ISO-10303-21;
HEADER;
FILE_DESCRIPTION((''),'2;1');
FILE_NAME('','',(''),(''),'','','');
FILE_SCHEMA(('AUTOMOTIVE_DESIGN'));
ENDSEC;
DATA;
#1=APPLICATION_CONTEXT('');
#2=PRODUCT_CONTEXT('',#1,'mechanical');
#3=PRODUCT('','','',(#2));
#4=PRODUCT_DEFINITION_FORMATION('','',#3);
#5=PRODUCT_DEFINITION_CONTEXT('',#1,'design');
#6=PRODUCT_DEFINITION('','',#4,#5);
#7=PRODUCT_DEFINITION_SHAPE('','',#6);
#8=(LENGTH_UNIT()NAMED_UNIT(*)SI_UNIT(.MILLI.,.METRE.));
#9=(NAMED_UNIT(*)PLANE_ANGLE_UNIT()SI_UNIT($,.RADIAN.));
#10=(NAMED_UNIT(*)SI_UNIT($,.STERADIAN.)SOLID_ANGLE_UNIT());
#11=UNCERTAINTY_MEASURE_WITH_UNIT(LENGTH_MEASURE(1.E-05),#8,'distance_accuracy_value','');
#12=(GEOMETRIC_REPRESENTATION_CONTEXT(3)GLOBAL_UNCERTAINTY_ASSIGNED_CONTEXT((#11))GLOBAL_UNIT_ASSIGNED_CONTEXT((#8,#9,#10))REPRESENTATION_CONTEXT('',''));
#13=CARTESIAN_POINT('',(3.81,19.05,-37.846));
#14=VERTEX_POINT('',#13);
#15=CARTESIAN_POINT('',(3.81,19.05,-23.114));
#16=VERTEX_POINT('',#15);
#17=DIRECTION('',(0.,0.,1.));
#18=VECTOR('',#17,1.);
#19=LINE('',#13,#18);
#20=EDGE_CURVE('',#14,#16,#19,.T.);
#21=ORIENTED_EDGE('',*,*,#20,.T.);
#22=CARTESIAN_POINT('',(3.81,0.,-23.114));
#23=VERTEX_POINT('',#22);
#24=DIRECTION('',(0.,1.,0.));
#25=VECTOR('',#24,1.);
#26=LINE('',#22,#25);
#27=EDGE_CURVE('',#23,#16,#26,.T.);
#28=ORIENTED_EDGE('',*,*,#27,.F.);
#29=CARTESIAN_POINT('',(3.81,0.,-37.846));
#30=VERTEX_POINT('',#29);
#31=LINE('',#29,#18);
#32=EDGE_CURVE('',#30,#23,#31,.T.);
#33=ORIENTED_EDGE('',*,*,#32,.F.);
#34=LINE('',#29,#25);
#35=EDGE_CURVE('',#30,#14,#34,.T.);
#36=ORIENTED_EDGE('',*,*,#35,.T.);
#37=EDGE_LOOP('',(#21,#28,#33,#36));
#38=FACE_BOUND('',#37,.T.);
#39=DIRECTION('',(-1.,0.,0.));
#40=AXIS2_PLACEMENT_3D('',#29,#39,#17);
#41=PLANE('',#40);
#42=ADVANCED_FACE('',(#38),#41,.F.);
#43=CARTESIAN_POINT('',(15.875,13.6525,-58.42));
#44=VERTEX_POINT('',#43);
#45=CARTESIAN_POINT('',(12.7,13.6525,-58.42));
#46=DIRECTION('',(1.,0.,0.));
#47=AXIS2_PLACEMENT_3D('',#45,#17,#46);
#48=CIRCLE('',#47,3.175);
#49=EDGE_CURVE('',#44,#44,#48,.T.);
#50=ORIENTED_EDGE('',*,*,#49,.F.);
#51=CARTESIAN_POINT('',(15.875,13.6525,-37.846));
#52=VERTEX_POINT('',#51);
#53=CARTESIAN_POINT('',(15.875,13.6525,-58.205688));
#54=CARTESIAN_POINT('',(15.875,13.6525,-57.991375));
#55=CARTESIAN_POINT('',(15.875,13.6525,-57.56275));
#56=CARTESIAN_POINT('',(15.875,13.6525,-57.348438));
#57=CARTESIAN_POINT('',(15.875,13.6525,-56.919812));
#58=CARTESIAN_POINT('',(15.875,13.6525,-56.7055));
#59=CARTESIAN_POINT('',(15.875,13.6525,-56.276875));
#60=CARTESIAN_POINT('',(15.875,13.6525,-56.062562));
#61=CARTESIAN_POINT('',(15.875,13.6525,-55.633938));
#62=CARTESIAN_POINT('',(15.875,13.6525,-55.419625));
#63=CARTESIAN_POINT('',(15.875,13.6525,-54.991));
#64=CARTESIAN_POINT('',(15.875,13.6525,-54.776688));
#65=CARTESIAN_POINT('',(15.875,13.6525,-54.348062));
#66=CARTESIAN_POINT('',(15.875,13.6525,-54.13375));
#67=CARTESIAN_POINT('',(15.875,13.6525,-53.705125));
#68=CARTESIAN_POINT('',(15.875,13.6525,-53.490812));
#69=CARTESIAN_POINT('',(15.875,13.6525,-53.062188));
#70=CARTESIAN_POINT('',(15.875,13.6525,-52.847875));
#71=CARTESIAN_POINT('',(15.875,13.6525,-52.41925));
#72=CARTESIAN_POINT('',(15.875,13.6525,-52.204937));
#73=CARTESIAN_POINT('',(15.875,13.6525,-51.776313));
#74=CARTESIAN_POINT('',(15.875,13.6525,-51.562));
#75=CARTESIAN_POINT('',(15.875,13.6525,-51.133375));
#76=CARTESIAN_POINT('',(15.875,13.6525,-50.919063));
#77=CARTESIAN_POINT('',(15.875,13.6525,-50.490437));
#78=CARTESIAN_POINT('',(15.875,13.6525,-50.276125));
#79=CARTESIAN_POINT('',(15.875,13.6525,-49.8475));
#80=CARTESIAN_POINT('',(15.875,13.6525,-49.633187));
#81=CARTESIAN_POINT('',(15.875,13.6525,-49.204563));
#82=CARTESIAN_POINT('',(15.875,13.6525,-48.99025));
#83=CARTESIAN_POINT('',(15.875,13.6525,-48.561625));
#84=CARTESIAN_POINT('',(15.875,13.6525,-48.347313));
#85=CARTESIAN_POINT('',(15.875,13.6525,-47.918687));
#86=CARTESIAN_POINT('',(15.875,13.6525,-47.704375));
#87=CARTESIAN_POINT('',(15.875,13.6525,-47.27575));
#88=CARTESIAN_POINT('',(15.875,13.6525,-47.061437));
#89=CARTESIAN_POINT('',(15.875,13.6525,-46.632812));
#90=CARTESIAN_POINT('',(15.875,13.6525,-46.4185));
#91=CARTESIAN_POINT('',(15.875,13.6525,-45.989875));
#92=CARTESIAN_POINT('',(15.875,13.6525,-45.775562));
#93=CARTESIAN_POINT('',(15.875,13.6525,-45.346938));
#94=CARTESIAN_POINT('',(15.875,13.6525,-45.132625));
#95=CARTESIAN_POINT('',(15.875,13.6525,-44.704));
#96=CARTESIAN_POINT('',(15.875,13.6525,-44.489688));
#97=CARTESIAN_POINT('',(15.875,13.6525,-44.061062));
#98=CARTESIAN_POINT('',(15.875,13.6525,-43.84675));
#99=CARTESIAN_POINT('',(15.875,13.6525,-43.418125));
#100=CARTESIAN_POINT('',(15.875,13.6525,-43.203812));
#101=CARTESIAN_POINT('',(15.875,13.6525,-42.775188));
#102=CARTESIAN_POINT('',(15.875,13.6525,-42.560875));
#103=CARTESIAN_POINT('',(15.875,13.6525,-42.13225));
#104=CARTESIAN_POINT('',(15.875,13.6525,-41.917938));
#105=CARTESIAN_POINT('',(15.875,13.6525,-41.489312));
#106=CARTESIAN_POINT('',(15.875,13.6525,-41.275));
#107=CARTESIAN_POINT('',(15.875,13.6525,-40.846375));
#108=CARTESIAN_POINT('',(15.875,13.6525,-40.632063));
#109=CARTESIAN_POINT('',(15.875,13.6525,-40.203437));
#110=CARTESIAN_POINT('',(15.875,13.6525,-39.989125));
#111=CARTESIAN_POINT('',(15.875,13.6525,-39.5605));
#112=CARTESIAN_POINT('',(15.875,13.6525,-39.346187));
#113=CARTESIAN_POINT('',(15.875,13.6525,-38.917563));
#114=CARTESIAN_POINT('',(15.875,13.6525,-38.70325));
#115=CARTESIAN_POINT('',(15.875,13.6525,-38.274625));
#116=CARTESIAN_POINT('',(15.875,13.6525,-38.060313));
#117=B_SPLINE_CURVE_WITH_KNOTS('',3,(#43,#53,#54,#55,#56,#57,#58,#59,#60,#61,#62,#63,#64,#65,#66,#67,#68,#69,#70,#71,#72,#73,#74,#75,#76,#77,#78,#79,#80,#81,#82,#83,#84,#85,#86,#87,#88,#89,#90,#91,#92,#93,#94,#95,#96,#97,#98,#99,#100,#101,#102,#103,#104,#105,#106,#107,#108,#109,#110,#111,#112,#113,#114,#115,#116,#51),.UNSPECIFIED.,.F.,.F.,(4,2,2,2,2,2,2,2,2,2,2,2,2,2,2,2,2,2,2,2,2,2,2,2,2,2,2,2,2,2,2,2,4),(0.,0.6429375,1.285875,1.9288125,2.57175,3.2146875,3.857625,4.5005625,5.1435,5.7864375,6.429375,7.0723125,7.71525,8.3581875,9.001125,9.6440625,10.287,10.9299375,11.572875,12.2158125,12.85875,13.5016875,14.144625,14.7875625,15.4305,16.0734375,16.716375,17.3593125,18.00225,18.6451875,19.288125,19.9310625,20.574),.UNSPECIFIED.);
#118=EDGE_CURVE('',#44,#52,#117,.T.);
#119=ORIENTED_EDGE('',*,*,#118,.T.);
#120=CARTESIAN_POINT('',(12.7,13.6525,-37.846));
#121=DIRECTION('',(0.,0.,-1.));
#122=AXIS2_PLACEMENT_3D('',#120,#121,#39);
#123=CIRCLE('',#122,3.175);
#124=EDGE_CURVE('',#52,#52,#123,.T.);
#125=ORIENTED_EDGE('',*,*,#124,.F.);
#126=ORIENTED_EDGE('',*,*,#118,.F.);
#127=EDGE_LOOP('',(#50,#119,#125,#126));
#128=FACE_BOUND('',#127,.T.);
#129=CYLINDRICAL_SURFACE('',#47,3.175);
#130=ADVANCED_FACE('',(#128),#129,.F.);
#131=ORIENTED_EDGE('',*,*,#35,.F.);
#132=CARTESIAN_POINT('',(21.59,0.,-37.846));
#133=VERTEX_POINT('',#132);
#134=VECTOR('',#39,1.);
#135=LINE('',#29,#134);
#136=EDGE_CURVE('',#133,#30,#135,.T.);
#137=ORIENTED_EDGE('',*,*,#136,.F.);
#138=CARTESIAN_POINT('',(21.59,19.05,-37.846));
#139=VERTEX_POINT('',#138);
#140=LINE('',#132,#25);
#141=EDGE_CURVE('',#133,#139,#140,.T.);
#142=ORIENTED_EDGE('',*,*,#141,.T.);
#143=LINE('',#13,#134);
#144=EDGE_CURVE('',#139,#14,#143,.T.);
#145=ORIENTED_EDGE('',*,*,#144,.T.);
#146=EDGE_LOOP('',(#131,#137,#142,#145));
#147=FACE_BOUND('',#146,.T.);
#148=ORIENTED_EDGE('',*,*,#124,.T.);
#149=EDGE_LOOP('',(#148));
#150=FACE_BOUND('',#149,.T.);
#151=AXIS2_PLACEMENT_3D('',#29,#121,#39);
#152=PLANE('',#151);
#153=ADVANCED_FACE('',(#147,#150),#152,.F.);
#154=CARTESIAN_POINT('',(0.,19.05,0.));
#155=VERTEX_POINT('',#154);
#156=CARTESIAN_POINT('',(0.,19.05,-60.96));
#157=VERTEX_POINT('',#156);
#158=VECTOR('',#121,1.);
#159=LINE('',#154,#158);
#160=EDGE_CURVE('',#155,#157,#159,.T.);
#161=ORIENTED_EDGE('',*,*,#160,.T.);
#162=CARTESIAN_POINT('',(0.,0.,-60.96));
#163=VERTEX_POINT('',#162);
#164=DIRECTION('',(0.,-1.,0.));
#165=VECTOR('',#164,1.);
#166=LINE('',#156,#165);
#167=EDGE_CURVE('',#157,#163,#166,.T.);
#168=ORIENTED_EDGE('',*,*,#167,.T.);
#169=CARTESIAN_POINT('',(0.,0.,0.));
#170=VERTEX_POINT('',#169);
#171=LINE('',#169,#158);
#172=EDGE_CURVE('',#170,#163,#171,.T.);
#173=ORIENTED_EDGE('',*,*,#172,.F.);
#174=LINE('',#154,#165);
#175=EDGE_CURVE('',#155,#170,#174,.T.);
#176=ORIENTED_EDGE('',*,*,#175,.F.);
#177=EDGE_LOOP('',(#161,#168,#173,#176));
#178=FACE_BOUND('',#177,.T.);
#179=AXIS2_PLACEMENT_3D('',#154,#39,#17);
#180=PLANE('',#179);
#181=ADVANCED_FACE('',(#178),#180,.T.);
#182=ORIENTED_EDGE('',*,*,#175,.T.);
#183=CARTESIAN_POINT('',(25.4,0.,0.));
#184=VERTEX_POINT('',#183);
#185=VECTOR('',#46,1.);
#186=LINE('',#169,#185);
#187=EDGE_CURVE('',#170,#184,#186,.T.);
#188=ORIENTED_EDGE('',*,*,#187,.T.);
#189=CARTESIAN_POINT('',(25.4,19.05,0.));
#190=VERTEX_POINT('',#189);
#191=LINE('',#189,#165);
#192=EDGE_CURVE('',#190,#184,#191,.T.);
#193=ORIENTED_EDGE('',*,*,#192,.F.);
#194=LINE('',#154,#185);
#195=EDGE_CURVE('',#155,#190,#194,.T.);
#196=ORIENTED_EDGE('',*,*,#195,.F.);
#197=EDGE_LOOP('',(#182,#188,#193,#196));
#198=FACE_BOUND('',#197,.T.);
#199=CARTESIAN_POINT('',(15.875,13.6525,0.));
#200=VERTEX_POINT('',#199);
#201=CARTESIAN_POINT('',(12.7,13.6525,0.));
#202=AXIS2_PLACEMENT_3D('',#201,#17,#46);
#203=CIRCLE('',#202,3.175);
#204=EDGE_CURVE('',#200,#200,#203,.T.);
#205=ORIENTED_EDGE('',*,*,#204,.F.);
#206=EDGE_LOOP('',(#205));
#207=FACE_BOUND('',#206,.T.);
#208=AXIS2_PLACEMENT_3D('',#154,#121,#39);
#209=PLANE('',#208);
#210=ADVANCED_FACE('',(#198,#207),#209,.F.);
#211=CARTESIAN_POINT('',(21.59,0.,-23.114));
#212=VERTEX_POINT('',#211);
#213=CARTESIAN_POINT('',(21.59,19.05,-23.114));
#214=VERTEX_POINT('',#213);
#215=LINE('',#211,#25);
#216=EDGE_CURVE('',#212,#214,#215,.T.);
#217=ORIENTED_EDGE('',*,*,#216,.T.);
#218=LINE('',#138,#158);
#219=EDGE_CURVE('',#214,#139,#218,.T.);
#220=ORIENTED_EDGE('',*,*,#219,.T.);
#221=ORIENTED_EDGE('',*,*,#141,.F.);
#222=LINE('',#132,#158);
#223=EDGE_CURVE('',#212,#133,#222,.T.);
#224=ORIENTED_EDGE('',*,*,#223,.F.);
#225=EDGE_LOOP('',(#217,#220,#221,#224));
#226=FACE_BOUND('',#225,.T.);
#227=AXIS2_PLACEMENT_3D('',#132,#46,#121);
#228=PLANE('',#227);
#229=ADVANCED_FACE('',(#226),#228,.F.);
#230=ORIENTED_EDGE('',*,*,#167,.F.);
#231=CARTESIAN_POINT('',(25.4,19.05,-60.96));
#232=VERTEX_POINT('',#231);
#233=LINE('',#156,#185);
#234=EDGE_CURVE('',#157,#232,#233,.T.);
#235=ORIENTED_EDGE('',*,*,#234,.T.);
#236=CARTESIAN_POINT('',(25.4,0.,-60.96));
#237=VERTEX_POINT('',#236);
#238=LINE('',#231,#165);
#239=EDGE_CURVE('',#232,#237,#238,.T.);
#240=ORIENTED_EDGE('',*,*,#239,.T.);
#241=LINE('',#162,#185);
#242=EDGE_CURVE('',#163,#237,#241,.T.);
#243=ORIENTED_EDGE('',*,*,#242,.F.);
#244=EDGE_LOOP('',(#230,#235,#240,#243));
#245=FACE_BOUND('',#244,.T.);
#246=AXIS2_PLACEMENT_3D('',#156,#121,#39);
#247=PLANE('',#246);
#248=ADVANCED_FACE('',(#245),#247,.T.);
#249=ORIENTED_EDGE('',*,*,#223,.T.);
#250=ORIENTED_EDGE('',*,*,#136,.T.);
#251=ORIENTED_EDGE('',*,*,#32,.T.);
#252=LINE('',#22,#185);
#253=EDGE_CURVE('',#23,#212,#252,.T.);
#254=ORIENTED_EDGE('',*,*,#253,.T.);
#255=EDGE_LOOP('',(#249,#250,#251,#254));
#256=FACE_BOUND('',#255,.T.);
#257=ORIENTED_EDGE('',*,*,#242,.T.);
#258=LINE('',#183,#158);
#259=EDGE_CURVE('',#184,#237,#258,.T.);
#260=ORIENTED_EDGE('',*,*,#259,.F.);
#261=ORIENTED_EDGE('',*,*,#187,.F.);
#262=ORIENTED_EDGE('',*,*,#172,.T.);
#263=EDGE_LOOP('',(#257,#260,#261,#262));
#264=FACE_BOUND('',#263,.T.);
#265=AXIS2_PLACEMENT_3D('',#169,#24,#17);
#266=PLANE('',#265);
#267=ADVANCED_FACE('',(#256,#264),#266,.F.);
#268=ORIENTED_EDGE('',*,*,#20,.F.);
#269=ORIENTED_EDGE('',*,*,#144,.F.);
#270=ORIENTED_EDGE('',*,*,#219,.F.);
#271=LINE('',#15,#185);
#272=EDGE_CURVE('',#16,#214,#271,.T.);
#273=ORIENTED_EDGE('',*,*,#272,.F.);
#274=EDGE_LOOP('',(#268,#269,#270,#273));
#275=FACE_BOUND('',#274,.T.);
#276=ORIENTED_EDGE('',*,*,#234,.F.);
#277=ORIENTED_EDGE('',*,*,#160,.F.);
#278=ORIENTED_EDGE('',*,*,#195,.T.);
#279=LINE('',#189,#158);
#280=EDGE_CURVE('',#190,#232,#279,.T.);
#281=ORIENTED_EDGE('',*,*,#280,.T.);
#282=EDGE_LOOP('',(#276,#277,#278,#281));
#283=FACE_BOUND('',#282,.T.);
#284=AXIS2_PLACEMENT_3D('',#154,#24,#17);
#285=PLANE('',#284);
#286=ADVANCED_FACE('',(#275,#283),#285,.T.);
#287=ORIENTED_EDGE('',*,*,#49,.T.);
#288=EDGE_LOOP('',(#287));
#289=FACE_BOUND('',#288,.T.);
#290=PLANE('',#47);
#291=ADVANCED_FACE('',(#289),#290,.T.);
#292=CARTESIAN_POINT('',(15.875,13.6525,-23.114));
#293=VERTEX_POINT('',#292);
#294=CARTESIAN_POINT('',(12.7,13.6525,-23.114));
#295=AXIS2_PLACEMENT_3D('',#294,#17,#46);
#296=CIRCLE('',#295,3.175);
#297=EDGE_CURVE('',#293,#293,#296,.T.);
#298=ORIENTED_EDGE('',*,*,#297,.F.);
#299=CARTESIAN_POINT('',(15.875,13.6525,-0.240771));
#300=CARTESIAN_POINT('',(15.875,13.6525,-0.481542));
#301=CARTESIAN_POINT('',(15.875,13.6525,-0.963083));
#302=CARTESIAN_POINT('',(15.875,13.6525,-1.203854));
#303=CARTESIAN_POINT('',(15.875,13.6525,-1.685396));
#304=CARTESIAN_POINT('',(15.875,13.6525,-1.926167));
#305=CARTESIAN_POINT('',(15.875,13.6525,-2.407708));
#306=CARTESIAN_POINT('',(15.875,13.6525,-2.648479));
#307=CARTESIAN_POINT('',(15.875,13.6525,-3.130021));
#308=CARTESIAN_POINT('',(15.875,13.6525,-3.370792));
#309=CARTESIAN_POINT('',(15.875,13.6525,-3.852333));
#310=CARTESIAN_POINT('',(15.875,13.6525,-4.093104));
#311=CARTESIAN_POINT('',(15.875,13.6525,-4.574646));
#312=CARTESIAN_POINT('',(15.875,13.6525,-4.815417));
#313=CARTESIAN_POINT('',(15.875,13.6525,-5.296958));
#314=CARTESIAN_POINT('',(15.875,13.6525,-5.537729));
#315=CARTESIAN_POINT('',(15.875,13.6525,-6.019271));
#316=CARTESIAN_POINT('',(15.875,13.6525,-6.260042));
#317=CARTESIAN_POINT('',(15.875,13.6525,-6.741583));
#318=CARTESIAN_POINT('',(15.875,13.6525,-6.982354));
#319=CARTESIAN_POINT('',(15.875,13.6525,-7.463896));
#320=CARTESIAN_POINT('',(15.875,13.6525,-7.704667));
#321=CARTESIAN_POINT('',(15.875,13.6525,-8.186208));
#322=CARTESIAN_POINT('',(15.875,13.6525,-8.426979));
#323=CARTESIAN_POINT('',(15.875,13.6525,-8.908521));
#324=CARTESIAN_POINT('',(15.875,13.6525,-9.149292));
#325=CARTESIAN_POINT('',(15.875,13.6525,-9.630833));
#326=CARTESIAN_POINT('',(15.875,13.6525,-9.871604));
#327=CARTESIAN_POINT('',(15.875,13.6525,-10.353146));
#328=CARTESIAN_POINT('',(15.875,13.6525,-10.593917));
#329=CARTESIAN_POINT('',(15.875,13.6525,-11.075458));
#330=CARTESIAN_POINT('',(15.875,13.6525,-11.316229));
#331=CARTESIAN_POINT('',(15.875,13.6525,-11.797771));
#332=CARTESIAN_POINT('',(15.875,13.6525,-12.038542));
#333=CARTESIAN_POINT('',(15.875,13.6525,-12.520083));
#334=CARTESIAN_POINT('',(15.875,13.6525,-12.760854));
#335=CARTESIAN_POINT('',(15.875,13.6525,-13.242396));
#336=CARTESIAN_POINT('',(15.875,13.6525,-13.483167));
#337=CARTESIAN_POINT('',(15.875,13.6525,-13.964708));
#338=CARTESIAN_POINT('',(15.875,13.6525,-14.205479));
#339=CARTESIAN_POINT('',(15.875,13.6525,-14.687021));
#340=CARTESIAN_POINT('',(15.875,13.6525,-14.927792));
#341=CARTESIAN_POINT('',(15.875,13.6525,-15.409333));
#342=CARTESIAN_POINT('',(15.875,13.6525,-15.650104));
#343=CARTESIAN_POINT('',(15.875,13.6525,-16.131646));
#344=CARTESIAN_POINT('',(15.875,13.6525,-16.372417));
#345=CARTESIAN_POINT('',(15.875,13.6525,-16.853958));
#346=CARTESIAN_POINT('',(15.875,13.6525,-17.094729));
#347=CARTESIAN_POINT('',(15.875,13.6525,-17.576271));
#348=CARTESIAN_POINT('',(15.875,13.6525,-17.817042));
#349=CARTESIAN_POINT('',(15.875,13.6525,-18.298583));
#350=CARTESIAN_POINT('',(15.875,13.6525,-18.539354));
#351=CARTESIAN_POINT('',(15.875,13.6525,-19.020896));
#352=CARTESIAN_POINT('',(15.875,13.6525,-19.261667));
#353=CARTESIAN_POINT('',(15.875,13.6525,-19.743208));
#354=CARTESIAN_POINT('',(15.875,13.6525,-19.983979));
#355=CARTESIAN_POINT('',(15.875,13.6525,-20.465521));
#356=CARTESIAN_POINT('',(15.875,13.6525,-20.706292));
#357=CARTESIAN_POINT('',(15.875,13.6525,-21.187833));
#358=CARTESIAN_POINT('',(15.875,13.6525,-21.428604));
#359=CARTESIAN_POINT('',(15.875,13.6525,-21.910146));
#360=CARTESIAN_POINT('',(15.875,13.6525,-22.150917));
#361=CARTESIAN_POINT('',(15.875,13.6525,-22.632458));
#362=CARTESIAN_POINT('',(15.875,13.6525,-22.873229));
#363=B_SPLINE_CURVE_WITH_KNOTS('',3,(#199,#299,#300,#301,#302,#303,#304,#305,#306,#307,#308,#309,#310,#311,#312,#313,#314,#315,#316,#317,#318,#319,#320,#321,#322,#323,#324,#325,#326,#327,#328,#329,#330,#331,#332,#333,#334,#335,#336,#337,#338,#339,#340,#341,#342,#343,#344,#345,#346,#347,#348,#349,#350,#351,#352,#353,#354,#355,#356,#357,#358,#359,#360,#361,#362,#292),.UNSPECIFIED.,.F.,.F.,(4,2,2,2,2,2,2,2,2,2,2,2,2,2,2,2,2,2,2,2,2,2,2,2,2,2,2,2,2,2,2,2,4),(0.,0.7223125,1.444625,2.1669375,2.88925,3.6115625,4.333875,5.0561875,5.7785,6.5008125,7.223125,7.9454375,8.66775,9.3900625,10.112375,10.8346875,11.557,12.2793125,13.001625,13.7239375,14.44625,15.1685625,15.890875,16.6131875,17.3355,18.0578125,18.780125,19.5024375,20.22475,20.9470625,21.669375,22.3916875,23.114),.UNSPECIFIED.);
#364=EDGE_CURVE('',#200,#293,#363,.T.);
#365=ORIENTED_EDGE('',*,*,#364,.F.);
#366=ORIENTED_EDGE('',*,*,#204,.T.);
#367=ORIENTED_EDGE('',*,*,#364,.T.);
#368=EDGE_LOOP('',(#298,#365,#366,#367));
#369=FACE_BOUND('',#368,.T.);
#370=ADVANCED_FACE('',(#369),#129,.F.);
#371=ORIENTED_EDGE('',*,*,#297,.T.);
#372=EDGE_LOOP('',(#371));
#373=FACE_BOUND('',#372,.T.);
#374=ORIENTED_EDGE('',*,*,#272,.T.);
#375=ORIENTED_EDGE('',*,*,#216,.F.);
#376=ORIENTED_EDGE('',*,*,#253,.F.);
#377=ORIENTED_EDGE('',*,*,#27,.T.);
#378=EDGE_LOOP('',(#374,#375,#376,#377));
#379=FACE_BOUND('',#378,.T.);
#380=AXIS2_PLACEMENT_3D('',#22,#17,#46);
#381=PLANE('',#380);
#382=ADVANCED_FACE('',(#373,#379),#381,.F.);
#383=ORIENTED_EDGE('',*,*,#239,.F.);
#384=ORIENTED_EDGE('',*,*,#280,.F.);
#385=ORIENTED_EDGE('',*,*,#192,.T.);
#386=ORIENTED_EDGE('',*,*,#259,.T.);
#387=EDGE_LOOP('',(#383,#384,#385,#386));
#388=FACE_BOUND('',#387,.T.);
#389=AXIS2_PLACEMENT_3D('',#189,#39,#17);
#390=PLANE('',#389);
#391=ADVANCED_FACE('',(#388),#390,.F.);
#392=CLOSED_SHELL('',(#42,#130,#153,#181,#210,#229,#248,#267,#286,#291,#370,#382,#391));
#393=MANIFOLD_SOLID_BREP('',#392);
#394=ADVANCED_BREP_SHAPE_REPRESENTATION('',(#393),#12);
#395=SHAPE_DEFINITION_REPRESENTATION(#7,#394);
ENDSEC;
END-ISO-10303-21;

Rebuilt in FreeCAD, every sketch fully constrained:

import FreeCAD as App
import Part
import Sketcher
Q = App.Units.Quantity


def add_polygon(sketch, points):
    """Adds a closed chain of lines whose ends are joined by coincident constraints."""
    first, n = sketch.GeometryCount, len(points)
    for a, b in zip(points, points[1:] + points[:1]):
        sketch.addGeometry(Part.LineSegment(App.Vector(*a, 0), App.Vector(*b, 0)), False)
    for i in range(n):
        sketch.addConstraint(Sketcher.Constraint("Coincident", first + i, 2, first + (i + 1) % n, 1))

doc = App.newDocument("Part")
body = doc.addObject("PartDesign::Body", "Body")

sketch1 = body.newObject("Sketcher::SketchObject", "Sketch")
sketch1.AttachmentSupport = (doc.getObject("XZ_Plane"), [""])
sketch1.MapMode = "FlatFace"
add_polygon(sketch1, [(0, -61), (0, 0), (25, 0), (25, -61)])
sketch1.addConstraint([
    Sketcher.Constraint("Vertical", 0),
    Sketcher.Constraint("Horizontal", 1),
    Sketcher.Constraint("Vertical", 2),
    Sketcher.Constraint("Horizontal", 3),
    Sketcher.Constraint("Coincident", 0, 2, -1, 1),
    Sketcher.Constraint("DistanceX", 1, 1, 1, 2, Q("1 in")),
    Sketcher.Constraint("DistanceY", 0, 1, 0, 2, Q("2.4 in")),
])
pad1 = body.newObject("PartDesign::Pad", "Pad")
pad1.Profile = sketch1
pad1.Length = Q("0.75 in")
pad1.Reversed = True

sketch2 = body.newObject("Sketcher::SketchObject", "Sketch001")
sketch2.AttachmentSupport = (doc.getObject("XZ_Plane"), [""])
sketch2.MapMode = "FlatFace"
sketch2.AttachmentOffset = App.Placement(App.Vector(0, 0, -0.75 * 25.4), App.Rotation())
add_polygon(sketch2, [(4, -38), (4, -23), (22, -23), (22, -38)])
sketch2.addConstraint([
    Sketcher.Constraint("Vertical", 0),
    Sketcher.Constraint("Horizontal", 1),
    Sketcher.Constraint("Vertical", 2),
    Sketcher.Constraint("Horizontal", 3),
    Sketcher.Constraint("DistanceX", 1, 1, 1, 2, Q("0.7 in")),
    Sketcher.Constraint("DistanceY", 0, 1, 0, 2, Q("0.58 in")),
    Sketcher.Constraint("DistanceX", -1, 1, 0, 2, Q("0.15 in")),
    Sketcher.Constraint("DistanceY", 0, 2, -1, 1, Q("0.91 in")),
])
pocket1 = body.newObject("PartDesign::Pocket", "Pocket")
pocket1.Profile = sketch2
pocket1.Length = Q("0.75 in")
pocket1.Reversed = True

sketch3 = body.newObject("Sketcher::SketchObject", "Sketch002")
sketch3.AttachmentSupport = (doc.getObject("XY_Plane"), [""])
sketch3.MapMode = "FlatFace"
sketch3.addGeometry(Part.Circle(App.Vector(12.7, 13.7, 0), App.Vector(0, 0, 1), 3.2), False)
sketch3.addConstraint([
    Sketcher.Constraint("Diameter", 0, Q("0.25 in")),
    Sketcher.Constraint("DistanceX", -1, 1, 0, 3, Q("0.5 in")),
    Sketcher.Constraint("DistanceY", -1, 1, 0, 3, Q("0.5375 in")),
])
pocket2 = body.newObject("PartDesign::Pocket", "Pocket001")
pocket2.Profile = sketch3
pocket2.Length = Q("2.3 in")

doc.recompute()
